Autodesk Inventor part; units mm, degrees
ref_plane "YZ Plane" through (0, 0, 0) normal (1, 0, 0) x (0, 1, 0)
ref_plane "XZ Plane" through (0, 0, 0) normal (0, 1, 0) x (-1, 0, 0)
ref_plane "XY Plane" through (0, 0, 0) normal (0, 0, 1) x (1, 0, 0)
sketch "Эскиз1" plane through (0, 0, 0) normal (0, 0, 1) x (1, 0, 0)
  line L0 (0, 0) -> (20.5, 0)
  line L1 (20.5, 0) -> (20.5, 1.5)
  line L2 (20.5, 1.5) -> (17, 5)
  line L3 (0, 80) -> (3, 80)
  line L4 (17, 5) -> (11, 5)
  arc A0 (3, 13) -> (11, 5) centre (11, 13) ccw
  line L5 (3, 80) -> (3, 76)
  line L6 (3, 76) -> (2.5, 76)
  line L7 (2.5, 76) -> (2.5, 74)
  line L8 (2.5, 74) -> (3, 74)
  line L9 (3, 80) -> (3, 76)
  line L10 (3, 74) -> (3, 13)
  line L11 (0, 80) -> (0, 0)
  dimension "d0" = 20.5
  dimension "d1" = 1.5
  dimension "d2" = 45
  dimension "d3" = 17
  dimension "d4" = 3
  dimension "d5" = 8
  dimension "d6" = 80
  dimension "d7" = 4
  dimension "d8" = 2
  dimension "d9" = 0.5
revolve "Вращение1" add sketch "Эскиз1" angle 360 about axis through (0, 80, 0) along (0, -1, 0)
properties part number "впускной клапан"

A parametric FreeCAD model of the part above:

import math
import FreeCAD as App
import Part
import Sketcher
from FreeCAD import Vector
Q = App.Units.Quantity

doc = App.newDocument("Part")
body = doc.addObject("PartDesign::Body", "Body")

sketch1 = body.newObject("Sketcher::SketchObject", "Sketch")
sketch1.AttachmentSupport = (doc.getObject("XY_Plane"), [""])
sketch1.MapMode = "FlatFace"
sketch1.addGeometry([
    Part.LineSegment(Vector(0, 80, 0), Vector(0, 0, 0)),
    Part.LineSegment(Vector(0, 0, 0), Vector(20.5, 0, 0)),
    Part.LineSegment(Vector(20.5, 0, 0), Vector(20.5, 1.5, 0)),
    Part.LineSegment(Vector(20.5, 1.5, 0), Vector(17, 5, 0)),
    Part.LineSegment(Vector(17, 5, 0), Vector(11, 5, 0)),
    Part.ArcOfCircle(Part.Circle(Vector(11, 13, 0), Vector(0, 0, 1), 8), math.radians(180), math.radians(270)),
    Part.LineSegment(Vector(3, 13, 0), Vector(3, 74, 0)),
    Part.LineSegment(Vector(3, 74, 0), Vector(2.5, 74, 0)),
    Part.LineSegment(Vector(2.5, 74, 0), Vector(2.5, 76, 0)),
    Part.LineSegment(Vector(2.5, 76, 0), Vector(3, 76, 0)),
    Part.LineSegment(Vector(3, 76, 0), Vector(3, 80, 0)),
    Part.LineSegment(Vector(3, 80, 0), Vector(0, 80, 0)),
], False)
sketch1.addConstraint([
    Sketcher.Constraint("Coincident", 0, 2, 1, 1),
    Sketcher.Constraint("Coincident", 1, 2, 2, 1),
    Sketcher.Constraint("Coincident", 2, 2, 3, 1),
    Sketcher.Constraint("Coincident", 3, 2, 4, 1),
    Sketcher.Constraint("Tangent", 4, 2, 5, 2),
    Sketcher.Constraint("Tangent", 5, 1, 6, 1),
    Sketcher.Constraint("Coincident", 6, 2, 7, 1),
    Sketcher.Constraint("Coincident", 7, 2, 8, 1),
    Sketcher.Constraint("Coincident", 8, 2, 9, 1),
    Sketcher.Constraint("Coincident", 9, 2, 10, 1),
    Sketcher.Constraint("Coincident", 10, 2, 11, 1),
    Sketcher.Constraint("Coincident", 11, 2, 0, 1),
    Sketcher.Constraint("Vertical", 0),
    Sketcher.Constraint("Horizontal", 1),
    Sketcher.Constraint("Vertical", 2),
    Sketcher.Constraint("Horizontal", 4),
    Sketcher.Constraint("Vertical", 6),
    Sketcher.Constraint("Horizontal", 7),
    Sketcher.Constraint("Vertical", 8),
    Sketcher.Constraint("Horizontal", 9),
    Sketcher.Constraint("Vertical", 10),
    Sketcher.Constraint("Horizontal", 11),
    Sketcher.Constraint("Coincident", 0, 2, -1, 1),
    Sketcher.Constraint("Vertical", 6, 2, 9, 2),
    Sketcher.Constraint("Radius", 5, Q("8 mm")),
    Sketcher.Constraint("DistanceX", 11, 2, 11, 1, Q("3 mm")),
    Sketcher.Constraint("DistanceY", 0, 2, 0, 1, Q("80 mm")),
    Sketcher.Constraint("DistanceY", 8, 1, 8, 2, Q("2 mm")),
    Sketcher.Constraint("DistanceY", 10, 1, 10, 2, Q("4 mm")),
    Sketcher.Constraint("DistanceX", 1, 1, 1, 2, Q("20.5 mm")),
    Sketcher.Constraint("DistanceX", 7, 2, 7, 1, Q("0.5 mm")),
    Sketcher.Constraint("DistanceY", 2, 1, 2, 2, Q("1.5 mm")),
    Sketcher.Constraint("DistanceX", -1, 1, 3, 2, Q("17 mm")),
    Sketcher.Constraint("DistanceY", 6, 1, 6, 2, Q("61 mm")),
])
revolution = body.newObject("PartDesign::Revolution", "Revolution")
revolution.Profile = sketch1
revolution.ReferenceAxis = (sketch1, ["V_Axis"])
revolution.Angle = 360

doc.recompute()
